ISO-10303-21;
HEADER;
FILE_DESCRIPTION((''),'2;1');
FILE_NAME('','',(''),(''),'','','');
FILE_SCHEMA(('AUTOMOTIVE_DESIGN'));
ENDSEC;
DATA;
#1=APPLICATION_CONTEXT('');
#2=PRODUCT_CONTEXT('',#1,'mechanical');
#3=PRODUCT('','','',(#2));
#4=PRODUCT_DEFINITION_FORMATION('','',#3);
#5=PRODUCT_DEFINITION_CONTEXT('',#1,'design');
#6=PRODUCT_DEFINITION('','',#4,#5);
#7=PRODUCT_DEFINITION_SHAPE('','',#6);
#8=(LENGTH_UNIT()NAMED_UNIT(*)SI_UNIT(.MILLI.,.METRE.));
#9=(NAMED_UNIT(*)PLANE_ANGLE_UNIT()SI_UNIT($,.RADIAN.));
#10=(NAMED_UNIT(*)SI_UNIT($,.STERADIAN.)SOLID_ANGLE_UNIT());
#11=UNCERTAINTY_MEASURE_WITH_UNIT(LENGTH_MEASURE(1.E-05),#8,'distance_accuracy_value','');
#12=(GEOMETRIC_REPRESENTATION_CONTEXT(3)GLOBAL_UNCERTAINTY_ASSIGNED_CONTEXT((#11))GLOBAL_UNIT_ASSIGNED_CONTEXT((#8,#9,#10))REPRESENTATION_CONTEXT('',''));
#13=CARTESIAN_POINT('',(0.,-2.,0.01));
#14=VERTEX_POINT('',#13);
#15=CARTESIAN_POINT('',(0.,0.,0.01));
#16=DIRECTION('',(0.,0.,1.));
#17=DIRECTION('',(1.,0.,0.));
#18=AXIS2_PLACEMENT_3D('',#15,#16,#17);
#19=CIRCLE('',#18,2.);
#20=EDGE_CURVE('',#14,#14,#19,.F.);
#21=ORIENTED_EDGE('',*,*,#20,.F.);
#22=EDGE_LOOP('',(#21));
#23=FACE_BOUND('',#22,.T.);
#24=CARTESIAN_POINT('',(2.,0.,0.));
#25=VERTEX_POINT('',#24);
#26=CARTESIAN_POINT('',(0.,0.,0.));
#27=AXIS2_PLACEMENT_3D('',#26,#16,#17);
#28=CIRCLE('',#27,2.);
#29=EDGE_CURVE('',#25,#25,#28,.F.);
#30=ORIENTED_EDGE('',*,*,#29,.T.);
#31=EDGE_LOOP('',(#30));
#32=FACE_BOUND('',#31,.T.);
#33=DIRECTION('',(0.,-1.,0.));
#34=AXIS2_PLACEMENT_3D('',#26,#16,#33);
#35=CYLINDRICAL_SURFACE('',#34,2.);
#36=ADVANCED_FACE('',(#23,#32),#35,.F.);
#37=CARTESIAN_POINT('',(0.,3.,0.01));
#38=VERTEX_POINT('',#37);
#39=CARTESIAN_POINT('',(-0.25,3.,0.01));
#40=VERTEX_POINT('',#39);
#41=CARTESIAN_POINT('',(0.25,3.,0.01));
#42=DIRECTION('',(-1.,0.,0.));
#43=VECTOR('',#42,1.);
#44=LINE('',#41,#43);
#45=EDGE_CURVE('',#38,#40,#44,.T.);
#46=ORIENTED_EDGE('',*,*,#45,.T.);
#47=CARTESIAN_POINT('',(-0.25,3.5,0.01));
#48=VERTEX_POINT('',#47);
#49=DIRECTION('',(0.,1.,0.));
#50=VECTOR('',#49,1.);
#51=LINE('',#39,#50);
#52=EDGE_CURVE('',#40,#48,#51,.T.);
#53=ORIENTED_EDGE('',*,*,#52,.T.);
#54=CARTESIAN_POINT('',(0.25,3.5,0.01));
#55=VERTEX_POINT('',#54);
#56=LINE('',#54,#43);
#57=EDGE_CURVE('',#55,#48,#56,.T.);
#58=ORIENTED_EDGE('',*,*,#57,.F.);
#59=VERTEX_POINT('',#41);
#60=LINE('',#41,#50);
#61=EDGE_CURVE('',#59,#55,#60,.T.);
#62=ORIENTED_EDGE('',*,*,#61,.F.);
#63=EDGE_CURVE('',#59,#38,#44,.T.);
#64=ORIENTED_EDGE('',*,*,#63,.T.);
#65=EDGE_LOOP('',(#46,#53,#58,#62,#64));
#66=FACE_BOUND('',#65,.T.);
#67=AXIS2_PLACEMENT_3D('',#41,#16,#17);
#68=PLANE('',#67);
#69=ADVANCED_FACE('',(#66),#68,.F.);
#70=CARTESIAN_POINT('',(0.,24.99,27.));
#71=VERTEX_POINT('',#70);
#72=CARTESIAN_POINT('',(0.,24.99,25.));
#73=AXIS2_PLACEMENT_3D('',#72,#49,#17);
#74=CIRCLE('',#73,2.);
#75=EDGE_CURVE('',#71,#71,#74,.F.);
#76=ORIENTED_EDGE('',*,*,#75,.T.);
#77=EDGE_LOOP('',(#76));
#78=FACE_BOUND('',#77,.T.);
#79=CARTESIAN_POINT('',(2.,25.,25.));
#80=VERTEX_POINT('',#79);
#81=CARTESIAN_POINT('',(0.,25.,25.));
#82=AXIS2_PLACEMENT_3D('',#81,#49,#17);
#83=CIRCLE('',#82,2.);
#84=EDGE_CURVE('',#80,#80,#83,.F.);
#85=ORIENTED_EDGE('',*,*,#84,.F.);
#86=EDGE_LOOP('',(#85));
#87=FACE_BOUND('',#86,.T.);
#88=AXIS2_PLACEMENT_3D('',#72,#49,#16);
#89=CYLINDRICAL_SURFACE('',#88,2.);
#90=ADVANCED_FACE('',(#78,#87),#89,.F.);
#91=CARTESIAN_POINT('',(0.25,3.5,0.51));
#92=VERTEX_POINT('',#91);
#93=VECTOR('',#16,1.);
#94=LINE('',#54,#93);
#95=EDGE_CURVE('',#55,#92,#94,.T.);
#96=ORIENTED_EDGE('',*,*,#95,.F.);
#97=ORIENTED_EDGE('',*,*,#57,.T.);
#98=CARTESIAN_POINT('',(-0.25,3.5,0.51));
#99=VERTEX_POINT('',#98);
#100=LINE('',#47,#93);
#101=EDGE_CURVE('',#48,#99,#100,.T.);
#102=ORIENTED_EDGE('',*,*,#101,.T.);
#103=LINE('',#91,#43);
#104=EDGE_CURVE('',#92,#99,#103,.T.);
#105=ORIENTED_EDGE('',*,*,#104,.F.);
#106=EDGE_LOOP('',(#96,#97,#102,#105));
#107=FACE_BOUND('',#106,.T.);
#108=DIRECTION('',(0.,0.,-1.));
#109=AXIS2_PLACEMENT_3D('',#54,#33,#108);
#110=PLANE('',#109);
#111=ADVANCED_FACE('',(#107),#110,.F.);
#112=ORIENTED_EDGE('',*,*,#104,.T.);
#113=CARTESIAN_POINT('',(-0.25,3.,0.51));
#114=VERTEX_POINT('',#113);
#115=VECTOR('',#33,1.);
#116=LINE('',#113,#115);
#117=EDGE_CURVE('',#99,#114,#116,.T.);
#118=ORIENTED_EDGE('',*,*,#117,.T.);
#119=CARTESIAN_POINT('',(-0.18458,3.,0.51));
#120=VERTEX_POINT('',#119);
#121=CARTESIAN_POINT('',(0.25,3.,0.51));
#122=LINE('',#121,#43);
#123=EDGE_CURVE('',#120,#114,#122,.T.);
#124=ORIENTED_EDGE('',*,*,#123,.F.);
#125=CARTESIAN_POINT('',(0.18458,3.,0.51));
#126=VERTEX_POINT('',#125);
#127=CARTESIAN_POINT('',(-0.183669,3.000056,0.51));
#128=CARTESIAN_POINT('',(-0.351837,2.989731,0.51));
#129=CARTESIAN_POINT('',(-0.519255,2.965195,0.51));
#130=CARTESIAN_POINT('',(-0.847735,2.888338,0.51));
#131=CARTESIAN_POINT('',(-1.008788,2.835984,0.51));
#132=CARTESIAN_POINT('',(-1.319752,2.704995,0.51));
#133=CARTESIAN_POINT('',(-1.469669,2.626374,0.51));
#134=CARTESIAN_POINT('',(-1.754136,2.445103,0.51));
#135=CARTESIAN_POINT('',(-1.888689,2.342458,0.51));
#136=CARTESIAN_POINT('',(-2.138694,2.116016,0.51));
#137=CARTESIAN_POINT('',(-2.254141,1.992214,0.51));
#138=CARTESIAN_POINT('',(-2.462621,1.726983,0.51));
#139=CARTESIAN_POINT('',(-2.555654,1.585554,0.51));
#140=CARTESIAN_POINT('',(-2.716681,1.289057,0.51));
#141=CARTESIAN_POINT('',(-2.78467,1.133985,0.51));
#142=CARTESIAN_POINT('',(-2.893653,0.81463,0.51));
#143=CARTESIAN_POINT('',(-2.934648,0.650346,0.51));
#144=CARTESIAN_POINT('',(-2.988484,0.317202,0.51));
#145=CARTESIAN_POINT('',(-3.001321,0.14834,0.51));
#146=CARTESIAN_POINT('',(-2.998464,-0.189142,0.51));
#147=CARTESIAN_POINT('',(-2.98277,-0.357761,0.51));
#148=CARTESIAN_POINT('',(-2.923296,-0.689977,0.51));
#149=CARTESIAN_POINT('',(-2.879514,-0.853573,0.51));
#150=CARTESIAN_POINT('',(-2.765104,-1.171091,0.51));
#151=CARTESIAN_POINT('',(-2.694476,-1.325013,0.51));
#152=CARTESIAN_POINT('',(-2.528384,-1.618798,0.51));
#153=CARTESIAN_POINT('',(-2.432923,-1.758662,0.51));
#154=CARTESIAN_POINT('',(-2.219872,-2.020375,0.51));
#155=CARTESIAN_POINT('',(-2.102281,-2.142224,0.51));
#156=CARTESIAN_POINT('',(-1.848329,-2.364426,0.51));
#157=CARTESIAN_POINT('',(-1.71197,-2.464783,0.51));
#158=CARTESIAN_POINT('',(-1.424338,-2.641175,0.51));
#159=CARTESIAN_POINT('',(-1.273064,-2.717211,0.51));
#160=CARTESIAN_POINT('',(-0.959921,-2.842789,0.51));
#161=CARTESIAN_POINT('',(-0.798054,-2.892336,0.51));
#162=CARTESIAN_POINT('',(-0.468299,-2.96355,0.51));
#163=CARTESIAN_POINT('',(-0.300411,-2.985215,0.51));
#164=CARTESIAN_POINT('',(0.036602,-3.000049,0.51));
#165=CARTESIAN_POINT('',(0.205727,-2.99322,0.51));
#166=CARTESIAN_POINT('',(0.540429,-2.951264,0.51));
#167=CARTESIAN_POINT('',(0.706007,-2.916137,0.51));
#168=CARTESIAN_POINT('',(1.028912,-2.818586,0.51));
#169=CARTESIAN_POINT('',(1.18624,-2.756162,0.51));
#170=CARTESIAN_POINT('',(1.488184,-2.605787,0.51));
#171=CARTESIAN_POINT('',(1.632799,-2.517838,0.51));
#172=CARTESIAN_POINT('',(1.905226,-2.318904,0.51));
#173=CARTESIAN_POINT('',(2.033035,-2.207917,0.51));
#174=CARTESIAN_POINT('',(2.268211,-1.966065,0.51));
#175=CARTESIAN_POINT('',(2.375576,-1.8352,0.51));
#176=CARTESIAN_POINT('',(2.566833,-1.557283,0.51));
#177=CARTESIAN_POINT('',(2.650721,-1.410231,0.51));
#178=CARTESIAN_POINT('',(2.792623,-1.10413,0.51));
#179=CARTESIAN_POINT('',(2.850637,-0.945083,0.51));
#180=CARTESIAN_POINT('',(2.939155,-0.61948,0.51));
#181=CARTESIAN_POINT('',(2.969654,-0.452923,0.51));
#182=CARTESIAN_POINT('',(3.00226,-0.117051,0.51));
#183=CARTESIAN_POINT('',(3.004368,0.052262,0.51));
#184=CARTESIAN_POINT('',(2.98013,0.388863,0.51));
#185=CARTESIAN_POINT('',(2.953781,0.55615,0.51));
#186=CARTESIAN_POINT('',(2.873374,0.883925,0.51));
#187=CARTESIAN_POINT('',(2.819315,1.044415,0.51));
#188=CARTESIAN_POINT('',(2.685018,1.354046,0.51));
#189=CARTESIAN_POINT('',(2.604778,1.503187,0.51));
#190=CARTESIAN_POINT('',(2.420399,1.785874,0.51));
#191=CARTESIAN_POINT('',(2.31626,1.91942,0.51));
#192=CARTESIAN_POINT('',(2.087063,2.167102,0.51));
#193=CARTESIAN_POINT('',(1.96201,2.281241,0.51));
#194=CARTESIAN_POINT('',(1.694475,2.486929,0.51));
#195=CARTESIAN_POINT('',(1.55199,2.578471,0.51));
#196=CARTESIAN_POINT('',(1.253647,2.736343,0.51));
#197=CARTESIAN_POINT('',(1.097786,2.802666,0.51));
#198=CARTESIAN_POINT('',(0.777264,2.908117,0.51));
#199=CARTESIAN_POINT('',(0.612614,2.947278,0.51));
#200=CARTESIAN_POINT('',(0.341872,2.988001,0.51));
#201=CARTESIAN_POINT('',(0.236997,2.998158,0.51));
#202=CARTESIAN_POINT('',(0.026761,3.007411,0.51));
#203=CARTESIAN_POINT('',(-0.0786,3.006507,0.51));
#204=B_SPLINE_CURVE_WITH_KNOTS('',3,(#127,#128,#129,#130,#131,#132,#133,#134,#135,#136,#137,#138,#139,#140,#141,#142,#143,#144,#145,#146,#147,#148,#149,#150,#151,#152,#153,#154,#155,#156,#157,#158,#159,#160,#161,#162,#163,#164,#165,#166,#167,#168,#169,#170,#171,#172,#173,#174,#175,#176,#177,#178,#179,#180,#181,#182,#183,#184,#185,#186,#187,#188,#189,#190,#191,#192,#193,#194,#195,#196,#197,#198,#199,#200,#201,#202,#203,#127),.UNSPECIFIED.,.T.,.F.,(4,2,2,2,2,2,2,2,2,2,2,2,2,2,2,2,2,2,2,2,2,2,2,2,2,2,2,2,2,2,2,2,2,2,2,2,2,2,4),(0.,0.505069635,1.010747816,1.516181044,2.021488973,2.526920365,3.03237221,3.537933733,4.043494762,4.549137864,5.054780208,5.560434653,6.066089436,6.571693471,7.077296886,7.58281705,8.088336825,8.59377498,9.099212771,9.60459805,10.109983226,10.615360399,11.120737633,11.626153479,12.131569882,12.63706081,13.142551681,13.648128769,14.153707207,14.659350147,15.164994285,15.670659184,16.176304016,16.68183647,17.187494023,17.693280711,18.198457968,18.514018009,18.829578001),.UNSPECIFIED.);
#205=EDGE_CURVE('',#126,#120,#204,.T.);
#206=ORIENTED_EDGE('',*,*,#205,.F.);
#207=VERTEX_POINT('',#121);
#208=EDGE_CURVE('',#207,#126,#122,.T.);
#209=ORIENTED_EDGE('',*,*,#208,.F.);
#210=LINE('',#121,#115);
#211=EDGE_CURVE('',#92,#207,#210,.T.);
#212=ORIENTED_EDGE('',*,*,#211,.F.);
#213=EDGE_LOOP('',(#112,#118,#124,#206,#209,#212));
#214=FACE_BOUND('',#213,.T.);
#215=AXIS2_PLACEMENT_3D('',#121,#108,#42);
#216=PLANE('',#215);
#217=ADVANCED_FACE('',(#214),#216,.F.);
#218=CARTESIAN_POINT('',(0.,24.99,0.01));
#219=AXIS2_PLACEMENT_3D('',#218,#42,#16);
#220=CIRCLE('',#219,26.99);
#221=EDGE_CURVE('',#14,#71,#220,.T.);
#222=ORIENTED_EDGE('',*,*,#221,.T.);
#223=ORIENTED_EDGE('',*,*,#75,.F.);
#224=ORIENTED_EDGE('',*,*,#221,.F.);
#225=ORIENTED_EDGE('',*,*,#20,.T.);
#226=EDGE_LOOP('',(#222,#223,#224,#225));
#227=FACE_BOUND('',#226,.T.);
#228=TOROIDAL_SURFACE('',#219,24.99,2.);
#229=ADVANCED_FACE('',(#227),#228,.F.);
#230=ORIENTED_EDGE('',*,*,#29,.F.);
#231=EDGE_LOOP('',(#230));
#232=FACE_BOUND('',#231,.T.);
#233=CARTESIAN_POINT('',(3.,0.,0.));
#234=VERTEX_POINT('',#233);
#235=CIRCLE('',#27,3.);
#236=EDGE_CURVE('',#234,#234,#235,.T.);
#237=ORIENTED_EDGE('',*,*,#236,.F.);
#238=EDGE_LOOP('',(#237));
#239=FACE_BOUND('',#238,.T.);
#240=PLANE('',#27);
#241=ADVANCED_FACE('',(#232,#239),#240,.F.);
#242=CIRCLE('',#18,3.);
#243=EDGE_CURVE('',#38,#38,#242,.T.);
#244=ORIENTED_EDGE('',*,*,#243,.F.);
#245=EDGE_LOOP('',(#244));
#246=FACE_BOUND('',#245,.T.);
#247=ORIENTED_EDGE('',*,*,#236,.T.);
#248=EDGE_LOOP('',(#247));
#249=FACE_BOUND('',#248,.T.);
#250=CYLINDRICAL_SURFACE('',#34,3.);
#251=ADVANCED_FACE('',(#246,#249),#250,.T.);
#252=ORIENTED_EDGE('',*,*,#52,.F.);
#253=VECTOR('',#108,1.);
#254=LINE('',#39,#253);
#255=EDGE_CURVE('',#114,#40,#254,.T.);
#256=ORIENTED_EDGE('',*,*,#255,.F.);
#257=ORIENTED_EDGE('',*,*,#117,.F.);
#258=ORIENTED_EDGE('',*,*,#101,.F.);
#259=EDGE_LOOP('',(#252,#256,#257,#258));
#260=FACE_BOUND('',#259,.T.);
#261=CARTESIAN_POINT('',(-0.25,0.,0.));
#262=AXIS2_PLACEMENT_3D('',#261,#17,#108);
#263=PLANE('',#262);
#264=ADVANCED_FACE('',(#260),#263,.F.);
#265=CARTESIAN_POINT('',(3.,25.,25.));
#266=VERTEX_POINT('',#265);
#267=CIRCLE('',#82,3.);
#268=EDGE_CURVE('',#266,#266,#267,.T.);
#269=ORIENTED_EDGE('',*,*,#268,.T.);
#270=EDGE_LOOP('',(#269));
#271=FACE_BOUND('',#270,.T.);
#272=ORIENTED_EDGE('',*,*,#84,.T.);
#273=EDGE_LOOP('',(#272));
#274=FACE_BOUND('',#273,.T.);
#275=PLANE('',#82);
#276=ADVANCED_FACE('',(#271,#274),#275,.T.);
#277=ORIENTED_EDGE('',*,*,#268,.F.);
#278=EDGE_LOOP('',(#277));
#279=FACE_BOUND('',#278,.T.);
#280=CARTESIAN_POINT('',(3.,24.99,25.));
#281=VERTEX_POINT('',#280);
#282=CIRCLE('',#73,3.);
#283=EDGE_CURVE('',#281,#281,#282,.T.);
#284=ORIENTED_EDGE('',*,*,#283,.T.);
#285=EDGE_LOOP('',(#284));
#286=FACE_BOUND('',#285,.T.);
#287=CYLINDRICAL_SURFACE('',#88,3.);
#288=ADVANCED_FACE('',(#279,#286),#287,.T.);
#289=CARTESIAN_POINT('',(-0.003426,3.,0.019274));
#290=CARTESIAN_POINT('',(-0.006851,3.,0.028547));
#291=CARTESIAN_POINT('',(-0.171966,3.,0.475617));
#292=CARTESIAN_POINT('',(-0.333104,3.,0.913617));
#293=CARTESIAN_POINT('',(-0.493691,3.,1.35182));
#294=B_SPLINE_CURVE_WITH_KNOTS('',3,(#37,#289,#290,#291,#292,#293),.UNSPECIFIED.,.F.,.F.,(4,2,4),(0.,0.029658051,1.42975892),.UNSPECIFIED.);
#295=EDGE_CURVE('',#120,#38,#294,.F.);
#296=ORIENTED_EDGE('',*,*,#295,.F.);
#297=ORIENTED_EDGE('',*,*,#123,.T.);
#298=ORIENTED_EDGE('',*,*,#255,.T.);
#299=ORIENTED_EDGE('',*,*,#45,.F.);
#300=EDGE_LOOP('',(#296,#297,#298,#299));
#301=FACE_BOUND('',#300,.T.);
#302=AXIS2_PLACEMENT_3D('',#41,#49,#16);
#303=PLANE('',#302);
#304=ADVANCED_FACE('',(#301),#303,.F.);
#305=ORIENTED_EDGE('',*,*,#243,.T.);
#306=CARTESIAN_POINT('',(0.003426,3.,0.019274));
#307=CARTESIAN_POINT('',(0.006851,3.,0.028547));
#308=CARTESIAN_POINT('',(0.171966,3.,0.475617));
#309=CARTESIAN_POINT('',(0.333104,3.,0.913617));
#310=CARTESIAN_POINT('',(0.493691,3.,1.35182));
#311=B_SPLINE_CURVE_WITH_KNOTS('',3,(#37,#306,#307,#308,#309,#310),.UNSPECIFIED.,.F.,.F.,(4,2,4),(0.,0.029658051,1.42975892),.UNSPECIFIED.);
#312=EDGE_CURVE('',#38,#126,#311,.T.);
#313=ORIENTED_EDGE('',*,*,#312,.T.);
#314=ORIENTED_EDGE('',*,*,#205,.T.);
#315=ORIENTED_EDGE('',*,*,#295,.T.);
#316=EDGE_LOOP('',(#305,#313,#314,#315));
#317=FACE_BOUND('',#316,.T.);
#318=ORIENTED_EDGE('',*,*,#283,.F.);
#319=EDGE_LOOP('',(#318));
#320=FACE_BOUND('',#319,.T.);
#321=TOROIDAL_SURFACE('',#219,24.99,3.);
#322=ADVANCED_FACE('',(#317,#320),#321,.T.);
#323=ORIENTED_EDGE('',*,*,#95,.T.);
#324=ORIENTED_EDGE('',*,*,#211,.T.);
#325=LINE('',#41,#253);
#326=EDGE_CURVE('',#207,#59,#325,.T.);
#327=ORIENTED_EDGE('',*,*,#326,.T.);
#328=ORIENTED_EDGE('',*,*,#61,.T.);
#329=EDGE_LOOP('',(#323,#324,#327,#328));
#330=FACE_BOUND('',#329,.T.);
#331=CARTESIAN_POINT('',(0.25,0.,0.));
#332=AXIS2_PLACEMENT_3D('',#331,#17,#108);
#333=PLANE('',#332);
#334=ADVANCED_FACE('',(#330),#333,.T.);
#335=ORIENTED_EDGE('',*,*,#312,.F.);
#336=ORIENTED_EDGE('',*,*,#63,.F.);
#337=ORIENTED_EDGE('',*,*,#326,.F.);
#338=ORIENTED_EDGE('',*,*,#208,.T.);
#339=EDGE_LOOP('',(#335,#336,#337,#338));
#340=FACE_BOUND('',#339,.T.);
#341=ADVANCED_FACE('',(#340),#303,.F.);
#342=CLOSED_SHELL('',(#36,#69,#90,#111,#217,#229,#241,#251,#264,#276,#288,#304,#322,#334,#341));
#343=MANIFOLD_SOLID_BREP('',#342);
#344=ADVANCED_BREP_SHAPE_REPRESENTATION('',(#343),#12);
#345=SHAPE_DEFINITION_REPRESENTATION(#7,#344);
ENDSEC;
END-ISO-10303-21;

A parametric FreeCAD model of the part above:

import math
import FreeCAD as App
import Part
import Sketcher
Q = App.Units.Quantity

doc = App.newDocument("Part")
body = doc.addObject("PartDesign::Body", "Body")

sketch1 = body.newObject("Sketcher::SketchObject", "Sketch")
sketch1.AttachmentSupport = (doc.getObject("XY_Plane"), [""])
sketch1.MapMode = "FlatFace"
sketch1.addGeometry(Part.Circle(App.Vector(0, 0, 0), App.Vector(0, 0, 1), 3), False)
sketch1.addGeometry(Part.Circle(App.Vector(0, 0, 0), App.Vector(0, 0, 1), 2), False)
sketch1.addConstraint(Sketcher.Constraint("Coincident", 0, 3, -1, 1))
sketch1.addConstraint(Sketcher.Constraint("Coincident", 1, 3, -1, 1))
sketch1.addConstraint(Sketcher.Constraint("Diameter", 0, Q("6 mm")))
sketch1.addConstraint(Sketcher.Constraint("Diameter", 1, Q("4 mm")))

sketch2 = body.newObject("Sketcher::SketchObject", "Sketch001")
sketch2.AttachmentSupport = (doc.getObject("YZ_Plane"), [""])
sketch2.MapMode = "FlatFace"
sketch2.addGeometry(Part.LineSegment(App.Vector(0, 0, 0), App.Vector(0, 0.01, 0)), False)
sketch2.addGeometry(Part.ArcOfCircle(Part.Circle(App.Vector(24.99, 0.01, 0), App.Vector(0, 0, 1), 24.99), math.radians(90), math.radians(180)), False)
sketch2.addGeometry(Part.LineSegment(App.Vector(24.99, 25, 0), App.Vector(25, 25, 0)), False)
sketch2.addConstraint(Sketcher.Constraint("Tangent", 0, 2, 1, 2))
sketch2.addConstraint(Sketcher.Constraint("Tangent", 1, 1, 2, 1))
sketch2.addConstraint(Sketcher.Constraint("Coincident", 0, 1, -1, 1))
sketch2.addConstraint(Sketcher.Constraint("Horizontal", 1, 3, 0, 2))
sketch2.addConstraint(Sketcher.Constraint("Equal", 2, 0))
sketch2.addConstraint(Sketcher.Constraint("Radius", 1, Q("24.99 mm")))
sketch2.addConstraint(Sketcher.Constraint("DistanceY", -1, 1, 1, 1, Q("25 mm")))
sketch2.addConstraint(Sketcher.Constraint("DistanceX", -1, 1, 2, 2, Q("25 mm")))
doc.recompute()

additivepipe = body.newObject("PartDesign::AdditivePipe", "AdditivePipe")
additivepipe.Profile = sketch1
additivepipe.Spine = (sketch2, ["Edge1", "Edge2", "Edge3"])

sketch3 = body.newObject("Sketcher::SketchObject", "Sketch002")
sketch3.AttachmentSupport = (doc.getObject("YZ_Plane"), [""])
sketch3.MapMode = "FlatFace"
sketch3.addGeometry(Part.LineSegment(App.Vector(3.5, 0.5, 0), App.Vector(3, 0.5, 0)), False)
sketch3.addGeometry(Part.LineSegment(App.Vector(3, 0.5, 0), App.Vector(3, 0, 0)), False)
sketch3.addGeometry(Part.LineSegment(App.Vector(3, 0, 0), App.Vector(3.5, 0, 0)), False)
sketch3.addGeometry(Part.LineSegment(App.Vector(3.5, 0, 0), App.Vector(3.5, 0.5, 0)), False)
sketch3.addConstraint(Sketcher.Constraint("Coincident", 0, 2, 1, 1))
sketch3.addConstraint(Sketcher.Constraint("Coincident", 1, 2, 2, 1))
sketch3.addConstraint(Sketcher.Constraint("Coincident", 2, 2, 3, 1))
sketch3.addConstraint(Sketcher.Constraint("Coincident", 3, 2, 0, 1))
sketch3.addConstraint(Sketcher.Constraint("Horizontal", 0))
sketch3.addConstraint(Sketcher.Constraint("Vertical", 1))
sketch3.addConstraint(Sketcher.Constraint("Horizontal", 2))
sketch3.addConstraint(Sketcher.Constraint("Vertical", 3))
sketch3.addConstraint(Sketcher.Constraint("Equal", 2, 1))
sketch3.addConstraint(Sketcher.Constraint("DistanceX", 0, 2, 0, 1, Q("0.5 mm")))
sketch3.addConstraint(Sketcher.Constraint("DistanceX", -1, 1, 0, 2, Q("3 mm")))
sketch3.addConstraint(Sketcher.Constraint("DistanceY", -1, 1, 0, 2, Q("0.51 mm")))
pad1 = body.newObject("PartDesign::Pad", "Pad")
pad1.Profile = sketch3
pad1.Length = 0.5
pad1.Midplane = True

doc.recompute()
